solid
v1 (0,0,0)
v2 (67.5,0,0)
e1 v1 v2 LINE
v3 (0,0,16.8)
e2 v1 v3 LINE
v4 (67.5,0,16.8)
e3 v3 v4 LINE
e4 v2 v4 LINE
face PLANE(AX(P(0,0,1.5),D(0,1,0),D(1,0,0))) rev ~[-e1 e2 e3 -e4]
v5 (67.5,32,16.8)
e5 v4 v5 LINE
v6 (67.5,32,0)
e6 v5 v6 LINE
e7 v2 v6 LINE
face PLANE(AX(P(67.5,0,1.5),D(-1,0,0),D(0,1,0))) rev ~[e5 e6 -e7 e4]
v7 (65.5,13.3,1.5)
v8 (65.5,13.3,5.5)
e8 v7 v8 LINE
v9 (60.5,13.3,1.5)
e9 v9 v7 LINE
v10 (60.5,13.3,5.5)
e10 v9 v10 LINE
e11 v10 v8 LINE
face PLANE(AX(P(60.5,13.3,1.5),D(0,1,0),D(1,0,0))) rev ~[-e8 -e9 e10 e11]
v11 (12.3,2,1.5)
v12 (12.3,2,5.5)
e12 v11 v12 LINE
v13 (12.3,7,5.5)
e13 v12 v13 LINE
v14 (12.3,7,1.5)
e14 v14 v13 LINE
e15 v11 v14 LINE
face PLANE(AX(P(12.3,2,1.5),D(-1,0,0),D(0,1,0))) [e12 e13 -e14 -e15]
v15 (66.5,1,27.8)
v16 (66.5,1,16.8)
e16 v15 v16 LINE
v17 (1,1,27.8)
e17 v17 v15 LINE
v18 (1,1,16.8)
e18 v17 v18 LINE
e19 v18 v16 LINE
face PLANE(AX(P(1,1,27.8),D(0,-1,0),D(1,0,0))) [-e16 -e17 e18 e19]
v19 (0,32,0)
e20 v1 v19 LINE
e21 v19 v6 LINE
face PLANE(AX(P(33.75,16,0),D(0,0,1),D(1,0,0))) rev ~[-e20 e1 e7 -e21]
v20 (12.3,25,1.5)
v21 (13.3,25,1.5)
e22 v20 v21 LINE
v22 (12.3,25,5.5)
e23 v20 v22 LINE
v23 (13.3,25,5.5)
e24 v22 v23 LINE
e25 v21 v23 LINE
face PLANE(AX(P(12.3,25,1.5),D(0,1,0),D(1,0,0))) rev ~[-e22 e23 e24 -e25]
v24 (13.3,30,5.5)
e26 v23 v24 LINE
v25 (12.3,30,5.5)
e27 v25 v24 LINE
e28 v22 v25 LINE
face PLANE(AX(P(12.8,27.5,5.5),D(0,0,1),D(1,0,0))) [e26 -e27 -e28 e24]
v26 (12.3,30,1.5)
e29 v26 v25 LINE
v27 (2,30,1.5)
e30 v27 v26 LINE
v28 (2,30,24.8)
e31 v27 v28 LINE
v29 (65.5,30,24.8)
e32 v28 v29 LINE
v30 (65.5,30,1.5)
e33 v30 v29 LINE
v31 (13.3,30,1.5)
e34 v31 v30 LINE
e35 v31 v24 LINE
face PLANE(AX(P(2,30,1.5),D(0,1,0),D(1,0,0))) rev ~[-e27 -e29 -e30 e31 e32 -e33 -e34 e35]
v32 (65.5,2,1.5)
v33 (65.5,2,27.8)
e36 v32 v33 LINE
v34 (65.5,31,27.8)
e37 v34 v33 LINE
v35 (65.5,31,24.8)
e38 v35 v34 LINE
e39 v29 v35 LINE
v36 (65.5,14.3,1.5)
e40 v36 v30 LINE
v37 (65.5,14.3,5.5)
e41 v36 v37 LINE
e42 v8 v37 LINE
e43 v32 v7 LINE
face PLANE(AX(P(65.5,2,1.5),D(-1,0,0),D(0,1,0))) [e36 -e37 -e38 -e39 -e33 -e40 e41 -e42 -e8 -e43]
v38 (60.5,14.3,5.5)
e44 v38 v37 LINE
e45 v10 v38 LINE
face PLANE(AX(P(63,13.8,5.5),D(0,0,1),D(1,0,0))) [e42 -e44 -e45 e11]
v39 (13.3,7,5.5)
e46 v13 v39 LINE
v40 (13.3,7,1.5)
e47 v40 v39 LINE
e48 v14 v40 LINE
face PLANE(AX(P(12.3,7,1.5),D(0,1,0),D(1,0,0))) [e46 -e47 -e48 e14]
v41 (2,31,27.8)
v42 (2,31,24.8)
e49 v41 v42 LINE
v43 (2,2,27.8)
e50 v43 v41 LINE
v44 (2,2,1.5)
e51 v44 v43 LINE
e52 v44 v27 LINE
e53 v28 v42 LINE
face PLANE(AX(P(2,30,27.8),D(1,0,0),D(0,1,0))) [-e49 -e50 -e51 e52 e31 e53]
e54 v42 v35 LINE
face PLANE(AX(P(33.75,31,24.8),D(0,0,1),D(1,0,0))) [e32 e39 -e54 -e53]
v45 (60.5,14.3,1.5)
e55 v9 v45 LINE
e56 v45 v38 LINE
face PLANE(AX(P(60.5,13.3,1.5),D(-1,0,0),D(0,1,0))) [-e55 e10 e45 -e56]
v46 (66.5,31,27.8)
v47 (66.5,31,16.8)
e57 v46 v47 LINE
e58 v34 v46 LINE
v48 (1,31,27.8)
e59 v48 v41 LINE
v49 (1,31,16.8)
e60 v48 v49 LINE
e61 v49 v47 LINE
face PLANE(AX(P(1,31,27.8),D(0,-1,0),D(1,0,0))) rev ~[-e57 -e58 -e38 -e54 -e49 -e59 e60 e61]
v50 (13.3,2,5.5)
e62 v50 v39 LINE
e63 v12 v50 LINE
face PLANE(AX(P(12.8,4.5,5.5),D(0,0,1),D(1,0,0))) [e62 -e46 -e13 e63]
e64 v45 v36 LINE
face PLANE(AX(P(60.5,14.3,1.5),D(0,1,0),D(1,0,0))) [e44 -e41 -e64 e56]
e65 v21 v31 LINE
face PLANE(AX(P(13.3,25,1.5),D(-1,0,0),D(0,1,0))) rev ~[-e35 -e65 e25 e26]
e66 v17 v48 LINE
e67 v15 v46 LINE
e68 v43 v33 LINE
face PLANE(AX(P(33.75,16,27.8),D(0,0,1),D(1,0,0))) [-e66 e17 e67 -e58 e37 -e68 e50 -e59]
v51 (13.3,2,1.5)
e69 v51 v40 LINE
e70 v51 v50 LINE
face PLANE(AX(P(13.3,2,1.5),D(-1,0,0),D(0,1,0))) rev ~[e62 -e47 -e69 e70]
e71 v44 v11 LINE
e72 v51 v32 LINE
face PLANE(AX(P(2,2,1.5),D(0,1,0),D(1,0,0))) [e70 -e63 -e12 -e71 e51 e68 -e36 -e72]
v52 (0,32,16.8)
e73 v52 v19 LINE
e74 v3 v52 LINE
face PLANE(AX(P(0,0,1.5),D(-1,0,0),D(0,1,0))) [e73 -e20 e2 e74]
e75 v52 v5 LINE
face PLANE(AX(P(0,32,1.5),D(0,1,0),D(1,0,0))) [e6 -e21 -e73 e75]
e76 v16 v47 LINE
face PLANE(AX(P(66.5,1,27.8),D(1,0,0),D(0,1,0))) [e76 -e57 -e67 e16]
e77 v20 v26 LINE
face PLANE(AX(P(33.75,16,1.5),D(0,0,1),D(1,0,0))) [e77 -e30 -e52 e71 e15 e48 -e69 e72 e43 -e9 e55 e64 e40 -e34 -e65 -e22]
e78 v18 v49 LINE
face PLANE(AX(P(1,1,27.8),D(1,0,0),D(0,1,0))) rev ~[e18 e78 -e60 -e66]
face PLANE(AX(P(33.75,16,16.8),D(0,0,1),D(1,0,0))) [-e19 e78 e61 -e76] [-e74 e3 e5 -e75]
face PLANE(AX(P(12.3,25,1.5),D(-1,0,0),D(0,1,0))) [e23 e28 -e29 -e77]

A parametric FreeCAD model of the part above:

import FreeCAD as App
import Part
import Sketcher

V = App.Vector
Q = App.Units.Quantity


def add_polygon(sketch, points):
    """Adds a closed chain of lines whose ends are joined by coincident constraints."""
    first, n = sketch.GeometryCount, len(points)
    for a, b in zip(points, points[1:] + points[:1]):
        sketch.addGeometry(Part.LineSegment(App.Vector(*a, 0), App.Vector(*b, 0)), False)
    for i in range(n):
        sketch.addConstraint(Sketcher.Constraint("Coincident", first + i, 2, first + (i + 1) % n, 1))

doc = App.newDocument("Part")
params = doc.addObject("Spreadsheet::Sheet", "Params")
for row, (alias, value) in enumerate([
    ("sketch1_height", "32 mm"),
    ("sketch1_width", "67.5 mm"),
    ("pad1_length", "1.5 mm"),
    ("sketch2_height", "32 mm"),
    ("sketch2_height2", "28 mm"),
    ("sketch2_width", "67.5 mm"),
    ("sketch2_width2", "63.5 mm"),
    ("pad2_length", "26.3 mm"),
    ("sketch3_height", "2 mm"),
    ("sketch3_width", "63.5 mm"),
    ("pocket1_length", "3 mm"),
    ("sketch4_height", "32 mm"),
    ("sketch4_height2", "30 mm"),
    ("sketch4_width", "67.5 mm"),
    ("sketch4_width2", "65.5 mm"),
    ("pocket2_length", "11 mm"),
    ("sketch5_width", "5 mm"),
    ("sketch5_width2", "1 mm"),
    ("pad3_length", "4 mm"),
], start=1):
    params.set(f"A{row}", alias)
    params.set(f"B{row}", "=" + value)
    params.setAlias(f"B{row}", alias)

body = doc.addObject("PartDesign::Body", "Body")

# Sketch on XY plane
sketch1 = body.newObject("Sketcher::SketchObject", "Sketch")
sketch1.AttachmentSupport = (doc.getObject("XY_Plane"), [""])
sketch1.MapMode = "FlatFace"
add_polygon(sketch1, [(0, 32), (0, 0), (68, 0), (68, 32)])  # lines 0-3
sketch1.addConstraint(Sketcher.Constraint("Vertical", 0))
sketch1.addConstraint(Sketcher.Constraint("Horizontal", 1))
sketch1.addConstraint(Sketcher.Constraint("Vertical", 2))
sketch1.addConstraint(Sketcher.Constraint("Horizontal", 3))
sketch1.addConstraint(Sketcher.Constraint("Coincident", 0, 2, -1, 1))
sketch1.addConstraint(Sketcher.Constraint("DistanceY", 0, 2, 0, 1, Q("32 mm")))
sketch1.addConstraint(Sketcher.Constraint("DistanceX", 1, 1, 1, 2, Q("67.5 mm")))
sketch1.setExpression("Constraints[9]", "Params.sketch1_height")
sketch1.setExpression("Constraints[10]", "Params.sketch1_width")
pad1 = body.newObject("PartDesign::Pad", "Pad")
pad1.Profile = sketch1
pad1.setExpression("Length", "Params.pad1_length")

# Sketch on XY plane
sketch2 = body.newObject("Sketcher::SketchObject", "Sketch001")
sketch2.AttachmentSupport = (doc.getObject("XY_Plane"), [""])
sketch2.MapMode = "FlatFace"
sketch2.AttachmentOffset = App.Placement(V(0, 0, 1.5), App.Rotation())
add_polygon(sketch2, [(0, 32), (0, 0), (68, 0), (68, 32)])  # lines 0-3
add_polygon(sketch2, [(66, 2), (2, 2), (2, 30), (66, 30)])  # lines 4-7
sketch2.addConstraint(Sketcher.Constraint("Vertical", 0))
sketch2.addConstraint(Sketcher.Constraint("Horizontal", 1))
sketch2.addConstraint(Sketcher.Constraint("Vertical", 2))
sketch2.addConstraint(Sketcher.Constraint("Horizontal", 3))
sketch2.addConstraint(Sketcher.Constraint("Horizontal", 4))
sketch2.addConstraint(Sketcher.Constraint("Vertical", 5))
sketch2.addConstraint(Sketcher.Constraint("Horizontal", 6))
sketch2.addConstraint(Sketcher.Constraint("Vertical", 7))
sketch2.addConstraint(Sketcher.Constraint("Coincident", 0, 2, -1, 1))
sketch2.addConstraint(Sketcher.Constraint("DistanceY", 0, 2, 0, 1, Q("32 mm")))
sketch2.addConstraint(Sketcher.Constraint("DistanceY", 5, 1, 5, 2, Q("28 mm")))
sketch2.addConstraint(Sketcher.Constraint("DistanceX", 1, 1, 1, 2, Q("67.5 mm")))
sketch2.addConstraint(Sketcher.Constraint("DistanceX", 4, 2, 4, 1, Q("63.5 mm")))
sketch2.addConstraint(Sketcher.Constraint("DistanceX", -1, 1, 4, 2, Q("2 mm")))
sketch2.addConstraint(Sketcher.Constraint("DistanceY", -1, 1, 4, 2, Q("2 mm")))
sketch2.setExpression("Constraints[17]", "Params.sketch2_height")
sketch2.setExpression("Constraints[18]", "Params.sketch2_height2")
sketch2.setExpression("Constraints[19]", "Params.sketch2_width")
sketch2.setExpression("Constraints[20]", "Params.sketch2_width2")
pad2 = body.newObject("PartDesign::Pad", "Pad001")
pad2.Profile = sketch2
pad2.setExpression("Length", "Params.pad2_length")

# Sketch on XY plane
sketch3 = body.newObject("Sketcher::SketchObject", "Sketch002")
sketch3.AttachmentSupport = (doc.getObject("XY_Plane"), [""])
sketch3.MapMode = "FlatFace"
sketch3.AttachmentOffset = App.Placement(V(0, 0, 27.8), App.Rotation())
add_polygon(sketch3, [(2, 32), (2, 30), (65.5, 30), (65.5, 32)])  # lines 0-3
sketch3.addConstraint(Sketcher.Constraint("Vertical", 0))
sketch3.addConstraint(Sketcher.Constraint("Horizontal", 1))
sketch3.addConstraint(Sketcher.Constraint("Vertical", 2))
sketch3.addConstraint(Sketcher.Constraint("Horizontal", 3))
sketch3.addConstraint(Sketcher.Constraint("DistanceY", 0, 2, 0, 1, Q("2 mm")))
sketch3.addConstraint(Sketcher.Constraint("DistanceX", 1, 1, 1, 2, Q("63.5 mm")))
sketch3.addConstraint(Sketcher.Constraint("DistanceX", -1, 1, 0, 2, Q("2 mm")))
sketch3.addConstraint(Sketcher.Constraint("DistanceY", -1, 1, 0, 2, Q("30 mm")))
sketch3.setExpression("Constraints[8]", "Params.sketch3_height")
sketch3.setExpression("Constraints[9]", "Params.sketch3_width")
pocket1 = body.newObject("PartDesign::Pocket", "Pocket")
pocket1.Profile = sketch3
pocket1.setExpression("Length", "Params.pocket1_length")

# Sketch on XY plane
sketch4 = body.newObject("Sketcher::SketchObject", "Sketch003")
sketch4.AttachmentSupport = (doc.getObject("XY_Plane"), [""])
sketch4.MapMode = "FlatFace"
sketch4.AttachmentOffset = App.Placement(V(0, 0, 27.8), App.Rotation())
add_polygon(sketch4, [(0, 32), (0, 0), (68, 0), (68, 32)])  # lines 0-3
add_polygon(sketch4, [(66, 1), (1, 1), (1, 31), (66, 31)])  # lines 4-7
sketch4.addConstraint(Sketcher.Constraint("Vertical", 0))
sketch4.addConstraint(Sketcher.Constraint("Horizontal", 1))
sketch4.addConstraint(Sketcher.Constraint("Vertical", 2))
sketch4.addConstraint(Sketcher.Constraint("Horizontal", 3))
sketch4.addConstraint(Sketcher.Constraint("Horizontal", 4))
sketch4.addConstraint(Sketcher.Constraint("Vertical", 5))
sketch4.addConstraint(Sketcher.Constraint("Horizontal", 6))
sketch4.addConstraint(Sketcher.Constraint("Vertical", 7))
sketch4.addConstraint(Sketcher.Constraint("Coincident", 0, 2, -1, 1))
sketch4.addConstraint(Sketcher.Constraint("DistanceY", 0, 2, 0, 1, Q("32 mm")))
sketch4.addConstraint(Sketcher.Constraint("DistanceY", 5, 1, 5, 2, Q("30 mm")))
sketch4.addConstraint(Sketcher.Constraint("DistanceX", 1, 1, 1, 2, Q("67.5 mm")))
sketch4.addConstraint(Sketcher.Constraint("DistanceX", 4, 2, 4, 1, Q("65.5 mm")))
sketch4.addConstraint(Sketcher.Constraint("DistanceX", -1, 1, 4, 2, Q("1 mm")))
sketch4.addConstraint(Sketcher.Constraint("DistanceY", -1, 1, 4, 2, Q("1 mm")))
sketch4.setExpression("Constraints[17]", "Params.sketch4_height")
sketch4.setExpression("Constraints[18]", "Params.sketch4_height2")
sketch4.setExpression("Constraints[19]", "Params.sketch4_width")
sketch4.setExpression("Constraints[20]", "Params.sketch4_width2")
pocket2 = body.newObject("PartDesign::Pocket", "Pocket001")
pocket2.Profile = sketch4
pocket2.setExpression("Length", "Params.pocket2_length")

# Sketch on XY plane
sketch5 = body.newObject("Sketcher::SketchObject", "Sketch004")
sketch5.AttachmentSupport = (doc.getObject("XY_Plane"), [""])
sketch5.MapMode = "FlatFace"
sketch5.AttachmentOffset = App.Placement(V(0, 0, 1.5), App.Rotation())
add_polygon(sketch5, [(60.5, 14.3), (60.5, 13.3), (65.5, 13.3), (65.5, 14.3)])  # lines 0-3
add_polygon(sketch5, [(12.3, 30), (12.3, 25), (13.3, 25), (13.3, 30)])  # lines 4-7
add_polygon(sketch5, [(12.3, 7), (12.3, 2), (13.3, 2), (13.3, 7)])  # lines 8-11
sketch5.addConstraint(Sketcher.Constraint("Vertical", 0))
sketch5.addConstraint(Sketcher.Constraint("Horizontal", 1))
sketch5.addConstraint(Sketcher.Constraint("Vertical", 2))
sketch5.addConstraint(Sketcher.Constraint("Horizontal", 3))
sketch5.addConstraint(Sketcher.Constraint("Vertical", 4))
sketch5.addConstraint(Sketcher.Constraint("Horizontal", 5))
sketch5.addConstraint(Sketcher.Constraint("Vertical", 6))
sketch5.addConstraint(Sketcher.Constraint("Horizontal", 7))
sketch5.addConstraint(Sketcher.Constraint("Vertical", 8))
sketch5.addConstraint(Sketcher.Constraint("Horizontal", 9))
sketch5.addConstraint(Sketcher.Constraint("Vertical", 10))
sketch5.addConstraint(Sketcher.Constraint("Horizontal", 11))
sketch5.addConstraint(Sketcher.Constraint("Vertical", 7, 2, 8, 2))
sketch5.addConstraint(Sketcher.Constraint("Vertical", 6, 2, 9, 2))
sketch5.addConstraint(Sketcher.Constraint("Equal", 11, 0))
sketch5.addConstraint(Sketcher.Constraint("Equal", 3, 4))
sketch5.addConstraint(Sketcher.Constraint("Equal", 6, 8))
sketch5.addConstraint(Sketcher.Constraint("DistanceX", 1, 1, 1, 2, Q("5 mm")))
sketch5.addConstraint(Sketcher.Constraint("DistanceX", 5, 1, 5, 2, Q("1 mm")))
sketch5.addConstraint(Sketcher.Constraint("DistanceY", -1, 1, 4, 2, Q("25 mm")))
sketch5.addConstraint(Sketcher.Constraint("DistanceY", -1, 1, 8, 2, Q("2 mm")))
sketch5.addConstraint(Sketcher.Constraint("DistanceX", -1, 1, 0, 2, Q("60.5 mm")))
sketch5.addConstraint(Sketcher.Constraint("DistanceY", -1, 1, 0, 2, Q("13.3 mm")))
sketch5.addConstraint(Sketcher.Constraint("DistanceX", -1, 1, 4, 2, Q("12.3 mm")))
sketch5.setExpression("Constraints[29]", "Params.sketch5_width")
sketch5.setExpression("Constraints[30]", "Params.sketch5_width2")
pad3 = body.newObject("PartDesign::Pad", "Pad002")
pad3.Profile = sketch5
pad3.setExpression("Length", "Params.pad3_length")

doc.recompute()
